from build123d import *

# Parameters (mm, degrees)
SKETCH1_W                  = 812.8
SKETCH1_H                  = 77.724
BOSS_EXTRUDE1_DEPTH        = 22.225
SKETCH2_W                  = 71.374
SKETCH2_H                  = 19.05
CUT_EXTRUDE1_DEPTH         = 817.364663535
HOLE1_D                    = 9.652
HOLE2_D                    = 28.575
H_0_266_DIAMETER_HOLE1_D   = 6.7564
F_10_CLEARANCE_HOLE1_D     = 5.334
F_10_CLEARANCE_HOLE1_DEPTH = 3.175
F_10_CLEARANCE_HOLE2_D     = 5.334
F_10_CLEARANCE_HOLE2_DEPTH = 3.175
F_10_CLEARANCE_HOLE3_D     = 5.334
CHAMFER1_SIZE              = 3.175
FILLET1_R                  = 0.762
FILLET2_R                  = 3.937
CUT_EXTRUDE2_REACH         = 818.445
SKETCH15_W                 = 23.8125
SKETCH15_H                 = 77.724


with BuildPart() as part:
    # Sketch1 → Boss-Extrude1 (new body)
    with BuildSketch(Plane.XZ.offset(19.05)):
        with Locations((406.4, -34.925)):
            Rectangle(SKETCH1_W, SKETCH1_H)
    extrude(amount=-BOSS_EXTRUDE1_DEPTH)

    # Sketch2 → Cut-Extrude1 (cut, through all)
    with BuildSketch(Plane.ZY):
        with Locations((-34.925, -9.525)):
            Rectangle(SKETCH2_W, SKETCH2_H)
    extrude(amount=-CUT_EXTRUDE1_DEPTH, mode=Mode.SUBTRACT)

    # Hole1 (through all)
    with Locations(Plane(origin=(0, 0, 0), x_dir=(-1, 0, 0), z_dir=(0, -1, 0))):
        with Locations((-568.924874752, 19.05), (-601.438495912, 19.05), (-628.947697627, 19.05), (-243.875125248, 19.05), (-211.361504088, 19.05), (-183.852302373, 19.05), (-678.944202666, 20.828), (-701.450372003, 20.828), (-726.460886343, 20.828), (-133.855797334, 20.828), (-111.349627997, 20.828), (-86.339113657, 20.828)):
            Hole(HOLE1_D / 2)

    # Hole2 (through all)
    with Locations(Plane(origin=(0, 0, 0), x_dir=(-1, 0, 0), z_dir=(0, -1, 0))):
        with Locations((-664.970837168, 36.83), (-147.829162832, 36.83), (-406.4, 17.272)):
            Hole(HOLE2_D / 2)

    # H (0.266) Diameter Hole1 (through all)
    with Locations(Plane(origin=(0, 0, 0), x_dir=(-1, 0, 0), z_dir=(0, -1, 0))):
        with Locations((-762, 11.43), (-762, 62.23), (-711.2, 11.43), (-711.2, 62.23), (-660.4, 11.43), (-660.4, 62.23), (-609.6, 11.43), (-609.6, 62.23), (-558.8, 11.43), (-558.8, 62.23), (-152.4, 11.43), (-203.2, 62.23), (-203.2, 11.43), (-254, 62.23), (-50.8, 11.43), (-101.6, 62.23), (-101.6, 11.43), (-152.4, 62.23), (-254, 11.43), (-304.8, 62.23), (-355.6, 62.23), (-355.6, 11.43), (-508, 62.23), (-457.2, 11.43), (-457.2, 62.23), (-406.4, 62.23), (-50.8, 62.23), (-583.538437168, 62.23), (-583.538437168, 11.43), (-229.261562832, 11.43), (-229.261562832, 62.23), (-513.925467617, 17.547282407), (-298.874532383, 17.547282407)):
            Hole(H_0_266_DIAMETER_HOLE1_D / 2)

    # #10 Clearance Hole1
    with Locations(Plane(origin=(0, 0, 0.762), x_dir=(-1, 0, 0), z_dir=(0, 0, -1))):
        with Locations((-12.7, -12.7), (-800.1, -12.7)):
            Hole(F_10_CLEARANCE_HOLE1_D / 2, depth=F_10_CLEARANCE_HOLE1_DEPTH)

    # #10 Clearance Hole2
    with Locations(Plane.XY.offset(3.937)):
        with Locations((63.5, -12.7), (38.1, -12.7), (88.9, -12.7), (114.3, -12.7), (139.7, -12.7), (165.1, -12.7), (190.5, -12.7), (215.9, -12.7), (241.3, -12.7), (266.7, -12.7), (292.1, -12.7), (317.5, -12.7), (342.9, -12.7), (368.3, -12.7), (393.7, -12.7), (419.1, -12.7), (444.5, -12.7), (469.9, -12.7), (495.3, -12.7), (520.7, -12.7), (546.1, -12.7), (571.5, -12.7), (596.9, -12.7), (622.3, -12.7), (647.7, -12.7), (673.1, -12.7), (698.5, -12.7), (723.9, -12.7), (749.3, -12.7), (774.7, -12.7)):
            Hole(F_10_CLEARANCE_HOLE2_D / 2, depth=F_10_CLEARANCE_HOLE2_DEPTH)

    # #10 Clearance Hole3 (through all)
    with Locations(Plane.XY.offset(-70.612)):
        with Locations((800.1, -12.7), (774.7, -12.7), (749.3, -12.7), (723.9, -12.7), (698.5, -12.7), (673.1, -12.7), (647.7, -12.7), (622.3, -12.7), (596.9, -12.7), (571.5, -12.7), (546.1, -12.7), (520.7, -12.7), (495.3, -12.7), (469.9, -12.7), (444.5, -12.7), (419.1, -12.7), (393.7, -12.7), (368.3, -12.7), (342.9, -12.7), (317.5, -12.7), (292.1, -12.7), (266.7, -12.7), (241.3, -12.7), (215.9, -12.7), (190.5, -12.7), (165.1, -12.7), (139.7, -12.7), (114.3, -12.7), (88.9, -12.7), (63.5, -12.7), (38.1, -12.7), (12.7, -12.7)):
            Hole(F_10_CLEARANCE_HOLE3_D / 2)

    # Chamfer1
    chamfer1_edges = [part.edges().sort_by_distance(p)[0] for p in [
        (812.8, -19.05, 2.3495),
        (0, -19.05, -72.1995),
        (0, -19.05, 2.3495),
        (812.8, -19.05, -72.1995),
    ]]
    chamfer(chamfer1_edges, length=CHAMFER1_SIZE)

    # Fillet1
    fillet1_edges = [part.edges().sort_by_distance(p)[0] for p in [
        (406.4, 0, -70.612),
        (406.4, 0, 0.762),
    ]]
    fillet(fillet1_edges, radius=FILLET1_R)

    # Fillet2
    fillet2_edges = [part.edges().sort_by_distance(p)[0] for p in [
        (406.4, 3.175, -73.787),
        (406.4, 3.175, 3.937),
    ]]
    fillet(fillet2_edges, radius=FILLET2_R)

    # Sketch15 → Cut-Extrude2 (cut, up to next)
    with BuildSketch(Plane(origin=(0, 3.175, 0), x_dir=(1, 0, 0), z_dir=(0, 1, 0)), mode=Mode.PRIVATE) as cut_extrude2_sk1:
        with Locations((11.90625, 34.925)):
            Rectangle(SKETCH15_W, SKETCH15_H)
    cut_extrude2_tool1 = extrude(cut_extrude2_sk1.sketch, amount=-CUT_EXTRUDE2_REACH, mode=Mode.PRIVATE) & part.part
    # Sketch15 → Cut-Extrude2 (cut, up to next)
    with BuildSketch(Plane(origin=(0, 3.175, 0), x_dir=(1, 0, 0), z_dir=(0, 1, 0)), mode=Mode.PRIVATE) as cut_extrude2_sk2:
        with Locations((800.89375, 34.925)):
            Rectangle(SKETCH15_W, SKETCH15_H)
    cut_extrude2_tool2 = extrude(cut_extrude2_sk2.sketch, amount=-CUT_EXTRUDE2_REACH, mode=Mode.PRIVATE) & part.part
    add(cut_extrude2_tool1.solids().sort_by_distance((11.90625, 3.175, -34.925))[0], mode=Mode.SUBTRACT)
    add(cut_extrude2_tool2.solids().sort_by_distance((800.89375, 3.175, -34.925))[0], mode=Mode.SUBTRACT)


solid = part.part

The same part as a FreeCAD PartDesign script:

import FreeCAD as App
import Part
import Sketcher
from FreeCAD import Vector
Q = App.Units.Quantity


def edges_at(feature, points):
    """Names of the edges that pass closest to the given points."""
    edges = feature.Shape.Edges
    near = lambda p: min(range(len(edges)), key=lambda i: edges[i].distToShape(Part.Vertex(*p))[0])
    return sorted({f"Edge{near(p) + 1}" for p in points})

doc = App.newDocument("Part")
body = doc.addObject("PartDesign::Body", "Body")

# Sketch on XZ plane
sketch1 = body.newObject("Sketcher::SketchObject", "Sketch")
sketch1.AttachmentSupport = (doc.getObject("XZ_Plane"), [""])
sketch1.MapMode = "FlatFace"
sketch1.AttachmentOffset = App.Placement(Vector(0, 0, 0.75 * 25.4), App.Rotation())
sketch1.addGeometry([
    Part.LineSegment(Vector(0, 4, 0), Vector(0, -74, 0)),
    Part.LineSegment(Vector(0, -74, 0), Vector(813, -74, 0)),
    Part.LineSegment(Vector(813, -74, 0), Vector(813, 4, 0)),
    Part.LineSegment(Vector(813, 4, 0), Vector(0, 4, 0)),
], False)
sketch1.addConstraint([
    Sketcher.Constraint("Coincident", 0, 2, 1, 1),
    Sketcher.Constraint("Coincident", 1, 2, 2, 1),
    Sketcher.Constraint("Coincident", 2, 2, 3, 1),
    Sketcher.Constraint("Coincident", 3, 2, 0, 1),
    Sketcher.Constraint("Vertical", 0),
    Sketcher.Constraint("Horizontal", 1),
    Sketcher.Constraint("Vertical", 2),
    Sketcher.Constraint("Horizontal", 3),
    Sketcher.Constraint("PointOnObject", 0, 2, -2),
    Sketcher.Constraint("DistanceX", 1, 1, 1, 2, Q("32 in")),
    Sketcher.Constraint("DistanceY", 0, 2, 0, 1, Q("3.06 in")),
    Sketcher.Constraint("DistanceY", 0, 2, -1, 1, Q("2.905 in")),
])
pad1 = body.newObject("PartDesign::Pad", "Pad")
pad1.Profile = sketch1
pad1.Length = Q("0.875 in")
pad1.Reversed = True

# Sketch on YZ plane
sketch2 = body.newObject("Sketcher::SketchObject", "Sketch001")
sketch2.AttachmentSupport = (doc.getObject("YZ_Plane"), [""])
sketch2.MapMode = "FlatFace"
sketch2.addGeometry([
    Part.LineSegment(Vector(0, -71, 0), Vector(-19, -71, 0)),
    Part.LineSegment(Vector(-19, -71, 0), Vector(-19, 1, 0)),
    Part.LineSegment(Vector(-19, 1, 0), Vector(0, 1, 0)),
    Part.LineSegment(Vector(0, 1, 0), Vector(0, -71, 0)),
], False)
sketch2.addConstraint([
    Sketcher.Constraint("Coincident", 0, 2, 1, 1),
    Sketcher.Constraint("Coincident", 1, 2, 2, 1),
    Sketcher.Constraint("Coincident", 2, 2, 3, 1),
    Sketcher.Constraint("Coincident", 3, 2, 0, 1),
    Sketcher.Constraint("Horizontal", 0),
    Sketcher.Constraint("Vertical", 1),
    Sketcher.Constraint("Horizontal", 2),
    Sketcher.Constraint("Vertical", 3),
    Sketcher.Constraint("PointOnObject", 2, 2, -2),
    Sketcher.Constraint("DistanceX", 0, 2, 0, 1, Q("0.75 in")),
    Sketcher.Constraint("DistanceY", 1, 1, 1, 2, Q("2.81 in")),
    Sketcher.Constraint("DistanceY", 0, 2, -1, 1, Q("2.78 in")),
])
pocket1 = body.newObject("PartDesign::Pocket", "Pocket")
pocket1.Profile = sketch2
pocket1.Type = "ThroughAll"
pocket1.Reversed = True

# Sketch on XZ plane
sketch3 = body.newObject("Sketcher::SketchObject", "Sketch002")
sketch3.AttachmentSupport = (doc.getObject("XZ_Plane"), [""])
sketch3.MapMode = "FlatFace"
sketch3.addGeometry([
    Part.Circle(Vector(568.9, -19.1, 0), Vector(0, 0, 1), 4.8),  # 0
    Part.Circle(Vector(601.4, -19.1, 0), Vector(0, 0, 1), 4.8),  # 1
    Part.Circle(Vector(628.9, -19.1, 0), Vector(0, 0, 1), 4.8),  # 2
    Part.Circle(Vector(243.9, -19.1, 0), Vector(0, 0, 1), 4.8),  # 3
    Part.Circle(Vector(211.4, -19.1, 0), Vector(0, 0, 1), 4.8),  # 4
    Part.Circle(Vector(183.9, -19.1, 0), Vector(0, 0, 1), 4.8),  # 5
    Part.Circle(Vector(678.9, -20.8, 0), Vector(0, 0, 1), 4.8),  # 6
    Part.Circle(Vector(701.5, -20.8, 0), Vector(0, 0, 1), 4.8),  # 7
    Part.Circle(Vector(726.5, -20.8, 0), Vector(0, 0, 1), 4.8),  # 8
    Part.Circle(Vector(133.9, -20.8, 0), Vector(0, 0, 1), 4.8),  # 9
    Part.Circle(Vector(111.3, -20.8, 0), Vector(0, 0, 1), 4.8),  # 10
    Part.Circle(Vector(86.3, -20.8, 0), Vector(0, 0, 1), 4.8),  # 11
], False)
sketch3.addConstraint([
    Sketcher.Constraint("Equal", 0, 1),
    Sketcher.Constraint("Equal", 1, 2),
    Sketcher.Constraint("Equal", 2, 3),
    Sketcher.Constraint("Equal", 3, 4),
    Sketcher.Constraint("Equal", 4, 5),
    Sketcher.Constraint("Equal", 5, 6),
    Sketcher.Constraint("Equal", 6, 7),
    Sketcher.Constraint("Equal", 7, 8),
    Sketcher.Constraint("Equal", 8, 9),
    Sketcher.Constraint("Equal", 9, 10),
    Sketcher.Constraint("Equal", 10, 11),
    Sketcher.Constraint("Horizontal", 0, 3, 1, 3),
    Sketcher.Constraint("Horizontal", 1, 3, 2, 3),
    Sketcher.Constraint("Horizontal", 2, 3, 3, 3),
    Sketcher.Constraint("Horizontal", 3, 3, 4, 3),
    Sketcher.Constraint("Horizontal", 4, 3, 5, 3),
    Sketcher.Constraint("Horizontal", 6, 3, 7, 3),
    Sketcher.Constraint("Horizontal", 7, 3, 8, 3),
    Sketcher.Constraint("Horizontal", 8, 3, 9, 3),
    Sketcher.Constraint("Horizontal", 9, 3, 10, 3),
    Sketcher.Constraint("Horizontal", 10, 3, 11, 3),
    Sketcher.Constraint("Diameter", 0, Q("0.38 in")),
    Sketcher.Constraint("DistanceY", 0, 3, -1, 1, Q("0.75 in")),
    Sketcher.Constraint("DistanceY", 6, 3, -1, 1, Q("0.82 in")),
    Sketcher.Constraint("DistanceX", 1, 3, 2, 3, Q("27.509202 mm")),
    Sketcher.Constraint("DistanceX", 5, 3, 4, 3, Q("27.509202 mm")),
    Sketcher.Constraint("DistanceX", 4, 3, 6, 3, Q("467.582699 mm")),
    Sketcher.Constraint("DistanceX", 9, 3, 1, 3, Q("467.582699 mm")),
    Sketcher.Constraint("DistanceX", 0, 3, 1, 3, Q("32.513621 mm")),
    Sketcher.Constraint("DistanceX", 3, 3, 0, 3, Q("325.04975 mm")),
    Sketcher.Constraint("DistanceX", 4, 3, 3, 3, Q("32.513621 mm")),
    Sketcher.Constraint("DistanceX", 6, 3, 7, 3, Q("22.506169 mm")),
    Sketcher.Constraint("DistanceX", 2, 3, 8, 3, Q("97.513189 mm")),
    Sketcher.Constraint("DistanceX", 10, 3, 9, 3, Q("22.506169 mm")),
    Sketcher.Constraint("DistanceX", 11, 3, 5, 3, Q("97.513189 mm")),
    Sketcher.Constraint("DistanceX", -1, 1, 0, 3, Q("568.924875 mm")),
])
doc.recompute()
hole = body.newObject("PartDesign::Hole", "Hole")
hole.Profile = sketch3
hole.ThreadType = "None"
hole.Diameter = Q("0.38 in")
hole.DepthType = "ThroughAll"

# Sketch on XZ plane
sketch4 = body.newObject("Sketcher::SketchObject", "Sketch003")
sketch4.AttachmentSupport = (doc.getObject("XZ_Plane"), [""])
sketch4.MapMode = "FlatFace"
sketch4.addGeometry([
    Part.Circle(Vector(665, -37, 0), Vector(0, 0, 1), 14),
    Part.Circle(Vector(148, -37, 0), Vector(0, 0, 1), 14),
    Part.Circle(Vector(406, -17, 0), Vector(0, 0, 1), 14),
], False)
sketch4.addConstraint([
    Sketcher.Constraint("Equal", 0, 1),
    Sketcher.Constraint("Equal", 1, 2),
    Sketcher.Constraint("Horizontal", 0, 3, 1, 3),
    Sketcher.Constraint("Diameter", 0, Q("1.125 in")),
    Sketcher.Constraint("DistanceX", -1, 1, 2, 3, Q("16 in")),
    Sketcher.Constraint("DistanceY", 0, 3, -1, 1, Q("1.45 in")),
    Sketcher.Constraint("DistanceY", 2, 3, -1, 1, Q("0.68 in")),
    Sketcher.Constraint("DistanceX", -1, 1, 0, 3, Q("664.970837 mm")),
    Sketcher.Constraint("DistanceX", -1, 1, 1, 3, Q("147.829163 mm")),
])
doc.recompute()
hole2 = body.newObject("PartDesign::Hole", "Hole001")
hole2.Profile = sketch4
hole2.ThreadType = "None"
hole2.Diameter = Q("1.125 in")
hole2.DepthType = "ThroughAll"

# Sketch on XZ plane
sketch5 = body.newObject("Sketcher::SketchObject", "Sketch004")
sketch5.AttachmentSupport = (doc.getObject("XZ_Plane"), [""])
sketch5.MapMode = "FlatFace"
sketch5.addGeometry([
    Part.Circle(Vector(762, -11.4, 0), Vector(0, 0, 1), 3.4),  # 0
    Part.Circle(Vector(762, -62.2, 0), Vector(0, 0, 1), 3.4),  # 1
    Part.Circle(Vector(711.2, -11.4, 0), Vector(0, 0, 1), 3.4),  # 2
    Part.Circle(Vector(711.2, -62.2, 0), Vector(0, 0, 1), 3.4),  # 3
    Part.Circle(Vector(660.4, -11.4, 0), Vector(0, 0, 1), 3.4),  # 4
    Part.Circle(Vector(660.4, -62.2, 0), Vector(0, 0, 1), 3.4),  # 5
    Part.Circle(Vector(609.6, -11.4, 0), Vector(0, 0, 1), 3.4),  # 6
    Part.Circle(Vector(609.6, -62.2, 0), Vector(0, 0, 1), 3.4),  # 7
    Part.Circle(Vector(558.8, -11.4, 0), Vector(0, 0, 1), 3.4),  # 8
    Part.Circle(Vector(558.8, -62.2, 0), Vector(0, 0, 1), 3.4),  # 9
    Part.Circle(Vector(152.4, -11.4, 0), Vector(0, 0, 1), 3.4),  # 10
    Part.Circle(Vector(203.2, -62.2, 0), Vector(0, 0, 1), 3.4),  # 11
    Part.Circle(Vector(203.2, -11.4, 0), Vector(0, 0, 1), 3.4),  # 12
    Part.Circle(Vector(254, -62.2, 0), Vector(0, 0, 1), 3.4),  # 13
    Part.Circle(Vector(50.8, -11.4, 0), Vector(0, 0, 1), 3.4),  # 14
    Part.Circle(Vector(101.6, -62.2, 0), Vector(0, 0, 1), 3.4),  # 15
    Part.Circle(Vector(101.6, -11.4, 0), Vector(0, 0, 1), 3.4),  # 16
    Part.Circle(Vector(152.4, -62.2, 0), Vector(0, 0, 1), 3.4),  # 17
    Part.Circle(Vector(254, -11.4, 0), Vector(0, 0, 1), 3.4),  # 18
    Part.Circle(Vector(304.8, -62.2, 0), Vector(0, 0, 1), 3.4),  # 19
    Part.Circle(Vector(355.6, -62.2, 0), Vector(0, 0, 1), 3.4),  # 20
    Part.Circle(Vector(355.6, -11.4, 0), Vector(0, 0, 1), 3.4),  # 21
    Part.Circle(Vector(508, -62.2, 0), Vector(0, 0, 1), 3.4),  # 22
    Part.Circle(Vector(457.2, -11.4, 0), Vector(0, 0, 1), 3.4),  # 23
    Part.Circle(Vector(457.2, -62.2, 0), Vector(0, 0, 1), 3.4),  # 24
    Part.Circle(Vector(406.4, -62.2, 0), Vector(0, 0, 1), 3.4),  # 25
    Part.Circle(Vector(50.8, -62.2, 0), Vector(0, 0, 1), 3.4),  # 26
    Part.Circle(Vector(583.5, -62.2, 0), Vector(0, 0, 1), 3.4),  # 27
    Part.Circle(Vector(583.5, -11.4, 0), Vector(0, 0, 1), 3.4),  # 28
    Part.Circle(Vector(229.3, -11.4, 0), Vector(0, 0, 1), 3.4),  # 29
    Part.Circle(Vector(229.3, -62.2, 0), Vector(0, 0, 1), 3.4),  # 30
    Part.Circle(Vector(513.9, -17.5, 0), Vector(0, 0, 1), 3.4),  # 31
    Part.Circle(Vector(298.9, -17.5, 0), Vector(0, 0, 1), 3.4),  # 32
], False)
sketch5.addConstraint([
    Sketcher.Constraint("Equal", 0, 1),
    Sketcher.Constraint("Equal", 1, 2),
    Sketcher.Constraint("Equal", 2, 3),
    Sketcher.Constraint("Equal", 3, 4),
    Sketcher.Constraint("Equal", 4, 5),
    Sketcher.Constraint("Equal", 5, 6),
    Sketcher.Constraint("Equal", 6, 7),
    Sketcher.Constraint("Equal", 7, 8),
    Sketcher.Constraint("Equal", 8, 9),
    Sketcher.Constraint("Equal", 9, 10),
    Sketcher.Constraint("Equal", 10, 11),
    Sketcher.Constraint("Equal", 11, 12),
    Sketcher.Constraint("Equal", 12, 13),
    Sketcher.Constraint("Equal", 13, 14),
    Sketcher.Constraint("Equal", 14, 15),
    Sketcher.Constraint("Equal", 15, 16),
    Sketcher.Constraint("Equal", 16, 17),
    Sketcher.Constraint("Equal", 17, 18),
    Sketcher.Constraint("Equal", 18, 19),
    Sketcher.Constraint("Equal", 19, 20),
    Sketcher.Constraint("Equal", 20, 21),
    Sketcher.Constraint("Equal", 21, 22),
    Sketcher.Constraint("Equal", 22, 23),
    Sketcher.Constraint("Equal", 23, 24),
    Sketcher.Constraint("Equal", 24, 25),
    Sketcher.Constraint("Equal", 25, 26),
    Sketcher.Constraint("Equal", 26, 27),
    Sketcher.Constraint("Equal", 27, 28),
    Sketcher.Constraint("Equal", 28, 29),
    Sketcher.Constraint("Equal", 29, 30),
    Sketcher.Constraint("Equal", 30, 31),
    Sketcher.Constraint("Equal", 31, 32),
    Sketcher.Constraint("Horizontal", 0, 3, 2, 3),
    Sketcher.Constraint("Horizontal", 1, 3, 3, 3),
    Sketcher.Constraint("Horizontal", 2, 3, 4, 3),
    Sketcher.Constraint("Horizontal", 3, 3, 5, 3),
    Sketcher.Constraint("Horizontal", 4, 3, 6, 3),
    Sketcher.Constraint("Horizontal", 5, 3, 7, 3),
    Sketcher.Constraint("Horizontal", 6, 3, 8, 3),
    Sketcher.Constraint("Horizontal", 7, 3, 9, 3),
    Sketcher.Constraint("Horizontal", 8, 3, 10, 3),
    Sketcher.Constraint("Horizontal", 9, 3, 11, 3),
    Sketcher.Constraint("Horizontal", 10, 3, 12, 3),
    Sketcher.Constraint("Horizontal", 11, 3, 13, 3),
    Sketcher.Constraint("Horizontal", 12, 3, 14, 3),
    Sketcher.Constraint("Horizontal", 13, 3, 15, 3),
    Sketcher.Constraint("Horizontal", 14, 3, 16, 3),
    Sketcher.Constraint("Horizontal", 15, 3, 17, 3),
    Sketcher.Constraint("Horizontal", 16, 3, 18, 3),
    Sketcher.Constraint("Horizontal", 17, 3, 19, 3),
    Sketcher.Constraint("Horizontal", 19, 3, 20, 3),
    Sketcher.Constraint("Horizontal", 18, 3, 21, 3),
    Sketcher.Constraint("Horizontal", 20, 3, 22, 3),
    Sketcher.Constraint("Horizontal", 21, 3, 23, 3),
    Sketcher.Constraint("Horizontal", 22, 3, 24, 3),
    Sketcher.Constraint("Horizontal", 24, 3, 25, 3),
    Sketcher.Constraint("Horizontal", 25, 3, 26, 3),
    Sketcher.Constraint("Horizontal", 26, 3, 27, 3),
    Sketcher.Constraint("Horizontal", 23, 3, 28, 3),
    Sketcher.Constraint("Horizontal", 28, 3, 29, 3),
    Sketcher.Constraint("Horizontal", 27, 3, 30, 3),
    Sketcher.Constraint("Horizontal", 31, 3, 32, 3),
    Sketcher.Constraint("Vertical", 0, 3, 1, 3),
    Sketcher.Constraint("Vertical", 2, 3, 3, 3),
    Sketcher.Constraint("Vertical", 4, 3, 5, 3),
    Sketcher.Constraint("Vertical", 6, 3, 7, 3),
    Sketcher.Constraint("Vertical", 8, 3, 9, 3),
    Sketcher.Constraint("Vertical", 11, 3, 12, 3),
    Sketcher.Constraint("Vertical", 15, 3, 16, 3),
    Sketcher.Constraint("Vertical", 10, 3, 17, 3),
    Sketcher.Constraint("Vertical", 13, 3, 18, 3),
    Sketcher.Constraint("Vertical", 20, 3, 21, 3),
    Sketcher.Constraint("Vertical", 23, 3, 24, 3),
    Sketcher.Constraint("Vertical", 14, 3, 26, 3),
    Sketcher.Constraint("Vertical", 27, 3, 28, 3),
    Sketcher.Constraint("Vertical", 29, 3, 30, 3),
    Sketcher.Constraint("Diameter", 0, Q("0.266 in")),
    Sketcher.Constraint("DistanceX", -1, 1, 0, 3, Q("30 in")),
    Sketcher.Constraint("DistanceX", -1, 1, 2, 3, Q("28 in")),
    Sketcher.Constraint("DistanceX", -1, 1, 4, 3, Q("26 in")),
    Sketcher.Constraint("DistanceX", -1, 1, 6, 3, Q("24 in")),
    Sketcher.Constraint("DistanceX", -1, 1, 8, 3, Q("22 in")),
    Sketcher.Constraint("DistanceX", -1, 1, 10, 3, Q("6 in")),
    Sketcher.Constraint("DistanceX", -1, 1, 11, 3, Q("8 in")),
    Sketcher.Constraint("DistanceX", -1, 1, 13, 3, Q("10 in")),
    Sketcher.Constraint("DistanceX", -1, 1, 14, 3, Q("2 in")),
    Sketcher.Constraint("DistanceX", -1, 1, 15, 3, Q("4 in")),
    Sketcher.Constraint("DistanceX", -1, 1, 19, 3, Q("12 in")),
    Sketcher.Constraint("DistanceX", -1, 1, 20, 3, Q("14 in")),
    Sketcher.Constraint("DistanceX", -1, 1, 22, 3, Q("20 in")),
    Sketcher.Constraint("DistanceX", -1, 1, 23, 3, Q("18 in")),
    Sketcher.Constraint("DistanceX", -1, 1, 25, 3, Q("16 in")),
    Sketcher.Constraint("DistanceY", 1, 3, 0, 3, Q("2 in")),
    Sketcher.Constraint("DistanceY", 0, 3, -1, 1, Q("0.45 in")),
    Sketcher.Constraint("DistanceX", 31, 3, 28, 3, Q("69.61297 mm")),
    Sketcher.Constraint("DistanceX", 29, 3, 32, 3, Q("69.61297 mm")),
    Sketcher.Constraint("DistanceX", -1, 1, 27, 3, Q("583.538437 mm")),
    Sketcher.Constraint("DistanceX", -1, 1, 29, 3, Q("229.261563 mm")),
    Sketcher.Constraint("DistanceY", 31, 3, -1, 1, Q("17.547282 mm")),
])
doc.recompute()
hole3 = body.newObject("PartDesign::Hole", "Hole002")
hole3.Profile = sketch5
hole3.ThreadType = "None"
hole3.Diameter = Q("0.266 in")
hole3.DepthType = "ThroughAll"

# Sketch on XY plane
sketch6 = body.newObject("Sketcher::SketchObject", "Sketch005")
sketch6.AttachmentSupport = (doc.getObject("XY_Plane"), [""])
sketch6.MapMode = "FlatFace"
sketch6.AttachmentOffset = App.Placement(Vector(0, 0, 0.03 * 25.4), App.Rotation())
sketch6.addGeometry([
    Part.Circle(Vector(12.7, -12.7, 0), Vector(0, 0, 1), 2.7),
    Part.Circle(Vector(800.1, -12.7, 0), Vector(0, 0, 1), 2.7),
], False)
sketch6.addConstraint([
    Sketcher.Constraint("Equal", 0, 1),
    Sketcher.Constraint("Horizontal", 0, 3, 1, 3),
    Sketcher.Constraint("Diameter", 0, Q("0.21 in")),
    Sketcher.Constraint("DistanceX", 0, 3, 1, 3, Q("31 in")),
    Sketcher.Constraint("DistanceX", -1, 1, 0, 3, Q("0.5 in")),
    Sketcher.Constraint("DistanceY", 0, 3, -1, 1, Q("0.5 in")),
])
doc.recompute()
hole4 = body.newObject("PartDesign::Hole", "Hole003")
hole4.Profile = sketch6
hole4.ThreadType = "None"
hole4.Diameter = Q("0.21 in")
hole4.DepthType = "Dimension"
hole4.Depth = Q("0.125 in")
hole4.DrillPoint = "Flat"
hole4.Reversed = True

# Sketch on XY plane
sketch7 = body.newObject("Sketcher::SketchObject", "Sketch006")
sketch7.AttachmentSupport = (doc.getObject("XY_Plane"), [""])
sketch7.MapMode = "FlatFace"
sketch7.AttachmentOffset = App.Placement(Vector(0, 0, 0.155 * 25.4), App.Rotation())
sketch7.addGeometry([
    Part.Circle(Vector(63.5, -12.7, 0), Vector(0, 0, 1), 2.7),  # 0
    Part.Circle(Vector(38.1, -12.7, 0), Vector(0, 0, 1), 2.7),  # 1
    Part.Circle(Vector(88.9, -12.7, 0), Vector(0, 0, 1), 2.7),  # 2
    Part.Circle(Vector(114.3, -12.7, 0), Vector(0, 0, 1), 2.7),  # 3
    Part.Circle(Vector(139.7, -12.7, 0), Vector(0, 0, 1), 2.7),  # 4
    Part.Circle(Vector(165.1, -12.7, 0), Vector(0, 0, 1), 2.7),  # 5
    Part.Circle(Vector(190.5, -12.7, 0), Vector(0, 0, 1), 2.7),  # 6
    Part.Circle(Vector(215.9, -12.7, 0), Vector(0, 0, 1), 2.7),  # 7
    Part.Circle(Vector(241.3, -12.7, 0), Vector(0, 0, 1), 2.7),  # 8
    Part.Circle(Vector(266.7, -12.7, 0), Vector(0, 0, 1), 2.7),  # 9
    Part.Circle(Vector(292.1, -12.7, 0), Vector(0, 0, 1), 2.7),  # 10
    Part.Circle(Vector(317.5, -12.7, 0), Vector(0, 0, 1), 2.7),  # 11
    Part.Circle(Vector(342.9, -12.7, 0), Vector(0, 0, 1), 2.7),  # 12
    Part.Circle(Vector(368.3, -12.7, 0), Vector(0, 0, 1), 2.7),  # 13
    Part.Circle(Vector(393.7, -12.7, 0), Vector(0, 0, 1), 2.7),  # 14
    Part.Circle(Vector(419.1, -12.7, 0), Vector(0, 0, 1), 2.7),  # 15
    Part.Circle(Vector(444.5, -12.7, 0), Vector(0, 0, 1), 2.7),  # 16
    Part.Circle(Vector(469.9, -12.7, 0), Vector(0, 0, 1), 2.7),  # 17
    Part.Circle(Vector(495.3, -12.7, 0), Vector(0, 0, 1), 2.7),  # 18
    Part.Circle(Vector(520.7, -12.7, 0), Vector(0, 0, 1), 2.7),  # 19
    Part.Circle(Vector(546.1, -12.7, 0), Vector(0, 0, 1), 2.7),  # 20
    Part.Circle(Vector(571.5, -12.7, 0), Vector(0, 0, 1), 2.7),  # 21
    Part.Circle(Vector(596.9, -12.7, 0), Vector(0, 0, 1), 2.7),  # 22
    Part.Circle(Vector(622.3, -12.7, 0), Vector(0, 0, 1), 2.7),  # 23
    Part.Circle(Vector(647.7, -12.7, 0), Vector(0, 0, 1), 2.7),  # 24
    Part.Circle(Vector(673.1, -12.7, 0), Vector(0, 0, 1), 2.7),  # 25
    Part.Circle(Vector(698.5, -12.7, 0), Vector(0, 0, 1), 2.7),  # 26
    Part.Circle(Vector(723.9, -12.7, 0), Vector(0, 0, 1), 2.7),  # 27
    Part.Circle(Vector(749.3, -12.7, 0), Vector(0, 0, 1), 2.7),  # 28
    Part.Circle(Vector(774.7, -12.7, 0), Vector(0, 0, 1), 2.7),  # 29
], False)
sketch7.addConstraint([
    Sketcher.Constraint("Equal", 0, 1),
    Sketcher.Constraint("Equal", 1, 2),
    Sketcher.Constraint("Equal", 2, 3),
    Sketcher.Constraint("Equal", 3, 4),
    Sketcher.Constraint("Equal", 4, 5),
    Sketcher.Constraint("Equal", 5, 6),
    Sketcher.Constraint("Equal", 6, 7),
    Sketcher.Constraint("Equal", 7, 8),
    Sketcher.Constraint("Equal", 8, 9),
    Sketcher.Constraint("Equal", 9, 10),
    Sketcher.Constraint("Equal", 10, 11),
    Sketcher.Constraint("Equal", 11, 12),
    Sketcher.Constraint("Equal", 12, 13),
    Sketcher.Constraint("Equal", 13, 14),
    Sketcher.Constraint("Equal", 14, 15),
    Sketcher.Constraint("Equal", 15, 16),
    Sketcher.Constraint("Equal", 16, 17),
    Sketcher.Constraint("Equal", 17, 18),
    Sketcher.Constraint("Equal", 18, 19),
    Sketcher.Constraint("Equal", 19, 20),
    Sketcher.Constraint("Equal", 20, 21),
    Sketcher.Constraint("Equal", 21, 22),
    Sketcher.Constraint("Equal", 22, 23),
    Sketcher.Constraint("Equal", 23, 24),
    Sketcher.Constraint("Equal", 24, 25),
    Sketcher.Constraint("Equal", 25, 26),
    Sketcher.Constraint("Equal", 26, 27),
    Sketcher.Constraint("Equal", 27, 28),
    Sketcher.Constraint("Equal", 28, 29),
    Sketcher.Constraint("Horizontal", 0, 3, 1, 3),
    Sketcher.Constraint("Horizontal", 1, 3, 2, 3),
    Sketcher.Constraint("Horizontal", 2, 3, 3, 3),
    Sketcher.Constraint("Horizontal", 3, 3, 4, 3),
    Sketcher.Constraint("Horizontal", 4, 3, 5, 3),
    Sketcher.Constraint("Horizontal", 5, 3, 6, 3),
    Sketcher.Constraint("Horizontal", 6, 3, 7, 3),
    Sketcher.Constraint("Horizontal", 7, 3, 8, 3),
    Sketcher.Constraint("Horizontal", 8, 3, 9, 3),
    Sketcher.Constraint("Horizontal", 9, 3, 10, 3),
    Sketcher.Constraint("Horizontal", 10, 3, 11, 3),
    Sketcher.Constraint("Horizontal", 11, 3, 12, 3),
    Sketcher.Constraint("Horizontal", 12, 3, 13, 3),
    Sketcher.Constraint("Horizontal", 13, 3, 14, 3),
    Sketcher.Constraint("Horizontal", 14, 3, 15, 3),
    Sketcher.Constraint("Horizontal", 15, 3, 16, 3),
    Sketcher.Constraint("Horizontal", 16, 3, 17, 3),
    Sketcher.Constraint("Horizontal", 17, 3, 18, 3),
    Sketcher.Constraint("Horizontal", 18, 3, 19, 3),
    Sketcher.Constraint("Horizontal", 19, 3, 20, 3),
    Sketcher.Constraint("Horizontal", 20, 3, 21, 3),
    Sketcher.Constraint("Horizontal", 21, 3, 22, 3),
    Sketcher.Constraint("Horizontal", 22, 3, 23, 3),
    Sketcher.Constraint("Horizontal", 23, 3, 24, 3),
    Sketcher.Constraint("Horizontal", 24, 3, 25, 3),
    Sketcher.Constraint("Horizontal", 25, 3, 26, 3),
    Sketcher.Constraint("Horizontal", 26, 3, 27, 3),
    Sketcher.Constraint("Horizontal", 27, 3, 28, 3),
    Sketcher.Constraint("Horizontal", 28, 3, 29, 3),
    Sketcher.Constraint("Diameter", 0, Q("0.21 in")),
    Sketcher.Constraint("DistanceX", 1, 3, 0, 3, Q("1 in")),
    Sketcher.Constraint("DistanceX", 0, 3, 2, 3, Q("1 in")),
    Sketcher.Constraint("DistanceX", 2, 3, 3, 3, Q("1 in")),
    Sketcher.Constraint("DistanceX", 3, 3, 4, 3, Q("1 in")),
    Sketcher.Constraint("DistanceX", 4, 3, 5, 3, Q("1 in")),
    Sketcher.Constraint("DistanceX", 5, 3, 6, 3, Q("1 in")),
    Sketcher.Constraint("DistanceX", 6, 3, 7, 3, Q("1 in")),
    Sketcher.Constraint("DistanceX", 7, 3, 8, 3, Q("1 in")),
    Sketcher.Constraint("DistanceX", 8, 3, 9, 3, Q("1 in")),
    Sketcher.Constraint("DistanceX", 9, 3, 10, 3, Q("1 in")),
    Sketcher.Constraint("DistanceX", 10, 3, 11, 3, Q("1 in")),
    Sketcher.Constraint("DistanceX", 11, 3, 12, 3, Q("1 in")),
    Sketcher.Constraint("DistanceX", 12, 3, 13, 3, Q("1 in")),
    Sketcher.Constraint("DistanceX", 13, 3, 14, 3, Q("1 in")),
    Sketcher.Constraint("DistanceX", 14, 3, 15, 3, Q("1 in")),
    Sketcher.Constraint("DistanceX", 15, 3, 16, 3, Q("1 in")),
    Sketcher.Constraint("DistanceX", 16, 3, 17, 3, Q("1 in")),
    Sketcher.Constraint("DistanceX", 17, 3, 18, 3, Q("1 in")),
    Sketcher.Constraint("DistanceX", 18, 3, 19, 3, Q("1 in")),
    Sketcher.Constraint("DistanceX", 19, 3, 20, 3, Q("1 in")),
    Sketcher.Constraint("DistanceX", 20, 3, 21, 3, Q("1 in")),
    Sketcher.Constraint("DistanceX", 21, 3, 22, 3, Q("1 in")),
    Sketcher.Constraint("DistanceX", 22, 3, 23, 3, Q("1 in")),
    Sketcher.Constraint("DistanceX", 23, 3, 24, 3, Q("1 in")),
    Sketcher.Constraint("DistanceX", 24, 3, 25, 3, Q("1 in")),
    Sketcher.Constraint("DistanceX", 25, 3, 26, 3, Q("1 in")),
    Sketcher.Constraint("DistanceX", 26, 3, 27, 3, Q("1 in")),
    Sketcher.Constraint("DistanceX", 27, 3, 28, 3, Q("1 in")),
    Sketcher.Constraint("DistanceX", 28, 3, 29, 3, Q("1 in")),
    Sketcher.Constraint("DistanceX", -1, 1, 0, 3, Q("2.5 in")),
    Sketcher.Constraint("DistanceY", 0, 3, -1, 1, Q("0.5 in")),
])
doc.recompute()
hole5 = body.newObject("PartDesign::Hole", "Hole004")
hole5.Profile = sketch7
hole5.ThreadType = "None"
hole5.Diameter = Q("0.21 in")
hole5.DepthType = "Dimension"
hole5.Depth = Q("0.125 in")
hole5.DrillPoint = "Flat"

# Sketch on XY plane
sketch8 = body.newObject("Sketcher::SketchObject", "Sketch007")
sketch8.AttachmentSupport = (doc.getObject("XY_Plane"), [""])
sketch8.MapMode = "FlatFace"
sketch8.AttachmentOffset = App.Placement(Vector(0, 0, -2.78 * 25.4), App.Rotation())
sketch8.addGeometry([
    Part.Circle(Vector(800.1, -12.7, 0), Vector(0, 0, 1), 2.7),  # 0
    Part.Circle(Vector(774.7, -12.7, 0), Vector(0, 0, 1), 2.7),  # 1
    Part.Circle(Vector(749.3, -12.7, 0), Vector(0, 0, 1), 2.7),  # 2
    Part.Circle(Vector(723.9, -12.7, 0), Vector(0, 0, 1), 2.7),  # 3
    Part.Circle(Vector(698.5, -12.7, 0), Vector(0, 0, 1), 2.7),  # 4
    Part.Circle(Vector(673.1, -12.7, 0), Vector(0, 0, 1), 2.7),  # 5
    Part.Circle(Vector(647.7, -12.7, 0), Vector(0, 0, 1), 2.7),  # 6
    Part.Circle(Vector(622.3, -12.7, 0), Vector(0, 0, 1), 2.7),  # 7
    Part.Circle(Vector(596.9, -12.7, 0), Vector(0, 0, 1), 2.7),  # 8
    Part.Circle(Vector(571.5, -12.7, 0), Vector(0, 0, 1), 2.7),  # 9
    Part.Circle(Vector(546.1, -12.7, 0), Vector(0, 0, 1), 2.7),  # 10
    Part.Circle(Vector(520.7, -12.7, 0), Vector(0, 0, 1), 2.7),  # 11
    Part.Circle(Vector(495.3, -12.7, 0), Vector(0, 0, 1), 2.7),  # 12
    Part.Circle(Vector(469.9, -12.7, 0), Vector(0, 0, 1), 2.7),  # 13
    Part.Circle(Vector(444.5, -12.7, 0), Vector(0, 0, 1), 2.7),  # 14
    Part.Circle(Vector(419.1, -12.7, 0), Vector(0, 0, 1), 2.7),  # 15
    Part.Circle(Vector(393.7, -12.7, 0), Vector(0, 0, 1), 2.7),  # 16
    Part.Circle(Vector(368.3, -12.7, 0), Vector(0, 0, 1), 2.7),  # 17
    Part.Circle(Vector(342.9, -12.7, 0), Vector(0, 0, 1), 2.7),  # 18
    Part.Circle(Vector(317.5, -12.7, 0), Vector(0, 0, 1), 2.7),  # 19
    Part.Circle(Vector(292.1, -12.7, 0), Vector(0, 0, 1), 2.7),  # 20
    Part.Circle(Vector(266.7, -12.7, 0), Vector(0, 0, 1), 2.7),  # 21
    Part.Circle(Vector(241.3, -12.7, 0), Vector(0, 0, 1), 2.7),  # 22
    Part.Circle(Vector(215.9, -12.7, 0), Vector(0, 0, 1), 2.7),  # 23
    Part.Circle(Vector(190.5, -12.7, 0), Vector(0, 0, 1), 2.7),  # 24
    Part.Circle(Vector(165.1, -12.7, 0), Vector(0, 0, 1), 2.7),  # 25
    Part.Circle(Vector(139.7, -12.7, 0), Vector(0, 0, 1), 2.7),  # 26
    Part.Circle(Vector(114.3, -12.7, 0), Vector(0, 0, 1), 2.7),  # 27
    Part.Circle(Vector(88.9, -12.7, 0), Vector(0, 0, 1), 2.7),  # 28
    Part.Circle(Vector(63.5, -12.7, 0), Vector(0, 0, 1), 2.7),  # 29
    Part.Circle(Vector(38.1, -12.7, 0), Vector(0, 0, 1), 2.7),  # 30
    Part.Circle(Vector(12.7, -12.7, 0), Vector(0, 0, 1), 2.7),  # 31
], False)
sketch8.addConstraint([
    Sketcher.Constraint("Equal", 0, 1),
    Sketcher.Constraint("Equal", 1, 2),
    Sketcher.Constraint("Equal", 2, 3),
    Sketcher.Constraint("Equal", 3, 4),
    Sketcher.Constraint("Equal", 4, 5),
    Sketcher.Constraint("Equal", 5, 6),
    Sketcher.Constraint("Equal", 6, 7),
    Sketcher.Constraint("Equal", 7, 8),
    Sketcher.Constraint("Equal", 8, 9),
    Sketcher.Constraint("Equal", 9, 10),
    Sketcher.Constraint("Equal", 10, 11),
    Sketcher.Constraint("Equal", 11, 12),
    Sketcher.Constraint("Equal", 12, 13),
    Sketcher.Constraint("Equal", 13, 14),
    Sketcher.Constraint("Equal", 14, 15),
    Sketcher.Constraint("Equal", 15, 16),
    Sketcher.Constraint("Equal", 16, 17),
    Sketcher.Constraint("Equal", 17, 18),
    Sketcher.Constraint("Equal", 18, 19),
    Sketcher.Constraint("Equal", 19, 20),
    Sketcher.Constraint("Equal", 20, 21),
    Sketcher.Constraint("Equal", 21, 22),
    Sketcher.Constraint("Equal", 22, 23),
    Sketcher.Constraint("Equal", 23, 24),
    Sketcher.Constraint("Equal", 24, 25),
    Sketcher.Constraint("Equal", 25, 26),
    Sketcher.Constraint("Equal", 26, 27),
    Sketcher.Constraint("Equal", 27, 28),
    Sketcher.Constraint("Equal", 28, 29),
    Sketcher.Constraint("Equal", 29, 30),
    Sketcher.Constraint("Equal", 30, 31),
    Sketcher.Constraint("Horizontal", 0, 3, 1, 3),
    Sketcher.Constraint("Horizontal", 1, 3, 2, 3),
    Sketcher.Constraint("Horizontal", 2, 3, 3, 3),
    Sketcher.Constraint("Horizontal", 3, 3, 4, 3),
    Sketcher.Constraint("Horizontal", 4, 3, 5, 3),
    Sketcher.Constraint("Horizontal", 5, 3, 6, 3),
    Sketcher.Constraint("Horizontal", 6, 3, 7, 3),
    Sketcher.Constraint("Horizontal", 7, 3, 8, 3),
    Sketcher.Constraint("Horizontal", 8, 3, 9, 3),
    Sketcher.Constraint("Horizontal", 9, 3, 10, 3),
    Sketcher.Constraint("Horizontal", 10, 3, 11, 3),
    Sketcher.Constraint("Horizontal", 11, 3, 12, 3),
    Sketcher.Constraint("Horizontal", 12, 3, 13, 3),
    Sketcher.Constraint("Horizontal", 13, 3, 14, 3),
    Sketcher.Constraint("Horizontal", 14, 3, 15, 3),
    Sketcher.Constraint("Horizontal", 15, 3, 16, 3),
    Sketcher.Constraint("Horizontal", 16, 3, 17, 3),
    Sketcher.Constraint("Horizontal", 17, 3, 18, 3),
    Sketcher.Constraint("Horizontal", 18, 3, 19, 3),
    Sketcher.Constraint("Horizontal", 19, 3, 20, 3),
    Sketcher.Constraint("Horizontal", 20, 3, 21, 3),
    Sketcher.Constraint("Horizontal", 21, 3, 22, 3),
    Sketcher.Constraint("Horizontal", 22, 3, 23, 3),
    Sketcher.Constraint("Horizontal", 23, 3, 24, 3),
    Sketcher.Constraint("Horizontal", 24, 3, 25, 3),
    Sketcher.Constraint("Horizontal", 25, 3, 26, 3),
    Sketcher.Constraint("Horizontal", 26, 3, 27, 3),
    Sketcher.Constraint("Horizontal", 27, 3, 28, 3),
    Sketcher.Constraint("Horizontal", 28, 3, 29, 3),
    Sketcher.Constraint("Horizontal", 29, 3, 30, 3),
    Sketcher.Constraint("Horizontal", 30, 3, 31, 3),
    Sketcher.Constraint("Diameter", 0, Q("0.21 in")),
    Sketcher.Constraint("DistanceX", 1, 3, 0, 3, Q("1 in")),
    Sketcher.Constraint("DistanceX", 2, 3, 1, 3, Q("1 in")),
    Sketcher.Constraint("DistanceX", 3, 3, 2, 3, Q("1 in")),
    Sketcher.Constraint("DistanceX", 4, 3, 3, 3, Q("1 in")),
    Sketcher.Constraint("DistanceX", 5, 3, 4, 3, Q("1 in")),
    Sketcher.Constraint("DistanceX", 6, 3, 5, 3, Q("1 in")),
    Sketcher.Constraint("DistanceX", 7, 3, 6, 3, Q("1 in")),
    Sketcher.Constraint("DistanceX", 8, 3, 7, 3, Q("1 in")),
    Sketcher.Constraint("DistanceX", 9, 3, 8, 3, Q("1 in")),
    Sketcher.Constraint("DistanceX", 10, 3, 9, 3, Q("1 in")),
    Sketcher.Constraint("DistanceX", 11, 3, 10, 3, Q("1 in")),
    Sketcher.Constraint("DistanceX", 12, 3, 11, 3, Q("1 in")),
    Sketcher.Constraint("DistanceX", 13, 3, 12, 3, Q("1 in")),
    Sketcher.Constraint("DistanceX", 14, 3, 13, 3, Q("1 in")),
    Sketcher.Constraint("DistanceX", 15, 3, 14, 3, Q("1 in")),
    Sketcher.Constraint("DistanceX", 16, 3, 15, 3, Q("1 in")),
    Sketcher.Constraint("DistanceX", 17, 3, 16, 3, Q("1 in")),
    Sketcher.Constraint("DistanceX", 18, 3, 17, 3, Q("1 in")),
    Sketcher.Constraint("DistanceX", 19, 3, 18, 3, Q("1 in")),
    Sketcher.Constraint("DistanceX", 20, 3, 19, 3, Q("1 in")),
    Sketcher.Constraint("DistanceX", 21, 3, 20, 3, Q("1 in")),
    Sketcher.Constraint("DistanceX", 22, 3, 21, 3, Q("1 in")),
    Sketcher.Constraint("DistanceX", 23, 3, 22, 3, Q("1 in")),
    Sketcher.Constraint("DistanceX", 24, 3, 23, 3, Q("1 in")),
    Sketcher.Constraint("DistanceX", 25, 3, 24, 3, Q("1 in")),
    Sketcher.Constraint("DistanceX", 26, 3, 25, 3, Q("1 in")),
    Sketcher.Constraint("DistanceX", 27, 3, 26, 3, Q("1 in")),
    Sketcher.Constraint("DistanceX", 28, 3, 27, 3, Q("1 in")),
    Sketcher.Constraint("DistanceX", 29, 3, 28, 3, Q("1 in")),
    Sketcher.Constraint("DistanceX", 30, 3, 29, 3, Q("1 in")),
    Sketcher.Constraint("DistanceX", 31, 3, 30, 3, Q("1 in")),
    Sketcher.Constraint("DistanceX", -1, 1, 0, 3, Q("31.5 in")),
    Sketcher.Constraint("DistanceY", 0, 3, -1, 1, Q("0.5 in")),
])
doc.recompute()
hole6 = body.newObject("PartDesign::Hole", "Hole005")
hole6.Profile = sketch8
hole6.ThreadType = "None"
hole6.Diameter = Q("0.21 in")
hole6.DepthType = "ThroughAll"
doc.recompute()

chamfer = body.newObject("PartDesign::Chamfer", "Chamfer")
chamfer.Base = (hole6, edges_at(hole6, [
    (812.8, -19.05, 2.349),
    (0, -19.05, -72.2),
    (0, -19.05, 2.349),
    (812.8, -19.05, -72.2),
]))
chamfer.Size = Q("0.125 in")
doc.recompute()

fillet = body.newObject("PartDesign::Fillet", "Fillet")
fillet.Base = (chamfer, edges_at(chamfer, [(406.4, 0, -70.612), (406.4, 0, 0.762)]))
fillet.Radius = Q("0.03 in")
doc.recompute()

fillet2 = body.newObject("PartDesign::Fillet", "Fillet001")
fillet2.Base = (fillet, edges_at(fillet, [(406.4, 3.175, -73.787), (406.4, 3.175, 3.937)]))
fillet2.Radius = Q("0.155 in")

# Sketch on XZ plane
sketch9 = body.newObject("Sketcher::SketchObject", "Sketch008")
sketch9.AttachmentSupport = (doc.getObject("XZ_Plane"), [""])
sketch9.MapMode = "FlatFace"
sketch9.AttachmentOffset = App.Placement(Vector(0, 0, -0.125 * 25.4), App.Rotation())
sketch9.addGeometry([
    Part.LineSegment(Vector(0, -74, 0), Vector(0, 4, 0)),
    Part.LineSegment(Vector(0, 4, 0), Vector(24, 4, 0)),
    Part.LineSegment(Vector(24, 4, 0), Vector(24, -74, 0)),
    Part.LineSegment(Vector(24, -74, 0), Vector(0, -74, 0)),
], False)
sketch9.addConstraint([
    Sketcher.Constraint("Coincident", 0, 2, 1, 1),
    Sketcher.Constraint("Coincident", 1, 2, 2, 1),
    Sketcher.Constraint("Coincident", 2, 2, 3, 1),
    Sketcher.Constraint("Coincident", 3, 2, 0, 1),
    Sketcher.Constraint("Vertical", 0),
    Sketcher.Constraint("Horizontal", 1),
    Sketcher.Constraint("Vertical", 2),
    Sketcher.Constraint("Horizontal", 3),
    Sketcher.Constraint("PointOnObject", 0, 2, -2),
    Sketcher.Constraint("DistanceY", 0, 1, 0, 2, Q("3.06 in")),
    Sketcher.Constraint("DistanceX", 1, 1, 1, 2, Q("0.9375 in")),
    Sketcher.Constraint("DistanceY", -1, 1, 0, 2, Q("0.155 in")),
])
pocket2 = body.newObject("PartDesign::Pocket", "Pocket001")
pocket2.Profile = sketch9
pocket2.Length = Q("0.875 in")
pocket2.Reversed = True

# Sketch on XZ plane
sketch10 = body.newObject("Sketcher::SketchObject", "Sketch009")
sketch10.AttachmentSupport = (doc.getObject("XZ_Plane"), [""])
sketch10.MapMode = "FlatFace"
sketch10.AttachmentOffset = App.Placement(Vector(0, 0, -0.125 * 25.4), App.Rotation())
sketch10.addGeometry([
    Part.LineSegment(Vector(789, -74, 0), Vector(789, 4, 0)),
    Part.LineSegment(Vector(789, 4, 0), Vector(813, 4, 0)),
    Part.LineSegment(Vector(813, 4, 0), Vector(813, -74, 0)),
    Part.LineSegment(Vector(813, -74, 0), Vector(789, -74, 0)),
], False)
sketch10.addConstraint([
    Sketcher.Constraint("Coincident", 0, 2, 1, 1),
    Sketcher.Constraint("Coincident", 1, 2, 2, 1),
    Sketcher.Constraint("Coincident", 2, 2, 3, 1),
    Sketcher.Constraint("Coincident", 3, 2, 0, 1),
    Sketcher.Constraint("Vertical", 0),
    Sketcher.Constraint("Horizontal", 1),
    Sketcher.Constraint("Vertical", 2),
    Sketcher.Constraint("Horizontal", 3),
    Sketcher.Constraint("DistanceX", -1, 1, 1, 2, Q("32 in")),
    Sketcher.Constraint("DistanceY", 0, 1, 0, 2, Q("3.06 in")),
    Sketcher.Constraint("DistanceX", 1, 1, 1, 2, Q("0.9375 in")),
    Sketcher.Constraint("DistanceY", -1, 1, 0, 2, Q("0.155 in")),
])
pocket3 = body.newObject("PartDesign::Pocket", "Pocket002")
pocket3.Profile = sketch10
pocket3.Length = Q("0.875 in")
pocket3.Reversed = True

doc.recompute()
